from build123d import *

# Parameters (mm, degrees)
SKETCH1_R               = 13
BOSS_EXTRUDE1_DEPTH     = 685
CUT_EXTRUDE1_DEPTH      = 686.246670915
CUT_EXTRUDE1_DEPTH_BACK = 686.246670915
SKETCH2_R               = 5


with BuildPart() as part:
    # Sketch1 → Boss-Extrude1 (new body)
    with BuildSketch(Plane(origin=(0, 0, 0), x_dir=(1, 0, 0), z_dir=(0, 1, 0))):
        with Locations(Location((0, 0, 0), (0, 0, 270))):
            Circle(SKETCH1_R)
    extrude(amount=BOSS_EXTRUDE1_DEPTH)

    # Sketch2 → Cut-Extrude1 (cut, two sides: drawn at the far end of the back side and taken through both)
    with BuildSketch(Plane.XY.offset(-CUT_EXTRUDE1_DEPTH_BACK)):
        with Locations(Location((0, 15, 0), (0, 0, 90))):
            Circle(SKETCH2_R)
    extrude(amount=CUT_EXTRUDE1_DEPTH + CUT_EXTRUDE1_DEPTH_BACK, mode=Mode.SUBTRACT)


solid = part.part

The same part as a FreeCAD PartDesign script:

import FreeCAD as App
import Part
import Sketcher

doc = App.newDocument("Part")
body = doc.addObject("PartDesign::Body", "Body")

# Sketch on XZ plane
sketch1 = body.newObject("Sketcher::SketchObject", "Sketch")
sketch1.AttachmentSupport = (doc.getObject("XZ_Plane"), [""])
sketch1.MapMode = "FlatFace"
sketch1.addGeometry(Part.Circle(App.Vector(0, 0, 0), App.Vector(0, 0, 1), 13), False)
sketch1.addConstraint([
    Sketcher.Constraint("Coincident", 0, 3, -1, 1),
    Sketcher.Constraint("Diameter", 0, 26.0),
])
pad1 = body.newObject("PartDesign::Pad", "Pad")
pad1.Profile = sketch1
pad1.Length = 685
pad1.Reversed = True

# Sketch on XY plane
sketch2 = body.newObject("Sketcher::SketchObject", "Sketch001")
sketch2.AttachmentSupport = (doc.getObject("XY_Plane"), [""])
sketch2.MapMode = "FlatFace"
sketch2.addGeometry(Part.Circle(App.Vector(0, 15, 0), App.Vector(0, 0, 1), 5), False)
sketch2.addConstraint([
    Sketcher.Constraint("PointOnObject", 0, 3, -2),
    Sketcher.Constraint("Diameter", 0, 10.0),
    Sketcher.Constraint("DistanceY", -1, 1, 0, 3, 15.0),
])
pocket1 = body.newObject("PartDesign::Pocket", "Pocket")
pocket1.Profile = sketch2
pocket1.Type = "ThroughAll"
pocket1.Midplane = True

doc.recompute()
